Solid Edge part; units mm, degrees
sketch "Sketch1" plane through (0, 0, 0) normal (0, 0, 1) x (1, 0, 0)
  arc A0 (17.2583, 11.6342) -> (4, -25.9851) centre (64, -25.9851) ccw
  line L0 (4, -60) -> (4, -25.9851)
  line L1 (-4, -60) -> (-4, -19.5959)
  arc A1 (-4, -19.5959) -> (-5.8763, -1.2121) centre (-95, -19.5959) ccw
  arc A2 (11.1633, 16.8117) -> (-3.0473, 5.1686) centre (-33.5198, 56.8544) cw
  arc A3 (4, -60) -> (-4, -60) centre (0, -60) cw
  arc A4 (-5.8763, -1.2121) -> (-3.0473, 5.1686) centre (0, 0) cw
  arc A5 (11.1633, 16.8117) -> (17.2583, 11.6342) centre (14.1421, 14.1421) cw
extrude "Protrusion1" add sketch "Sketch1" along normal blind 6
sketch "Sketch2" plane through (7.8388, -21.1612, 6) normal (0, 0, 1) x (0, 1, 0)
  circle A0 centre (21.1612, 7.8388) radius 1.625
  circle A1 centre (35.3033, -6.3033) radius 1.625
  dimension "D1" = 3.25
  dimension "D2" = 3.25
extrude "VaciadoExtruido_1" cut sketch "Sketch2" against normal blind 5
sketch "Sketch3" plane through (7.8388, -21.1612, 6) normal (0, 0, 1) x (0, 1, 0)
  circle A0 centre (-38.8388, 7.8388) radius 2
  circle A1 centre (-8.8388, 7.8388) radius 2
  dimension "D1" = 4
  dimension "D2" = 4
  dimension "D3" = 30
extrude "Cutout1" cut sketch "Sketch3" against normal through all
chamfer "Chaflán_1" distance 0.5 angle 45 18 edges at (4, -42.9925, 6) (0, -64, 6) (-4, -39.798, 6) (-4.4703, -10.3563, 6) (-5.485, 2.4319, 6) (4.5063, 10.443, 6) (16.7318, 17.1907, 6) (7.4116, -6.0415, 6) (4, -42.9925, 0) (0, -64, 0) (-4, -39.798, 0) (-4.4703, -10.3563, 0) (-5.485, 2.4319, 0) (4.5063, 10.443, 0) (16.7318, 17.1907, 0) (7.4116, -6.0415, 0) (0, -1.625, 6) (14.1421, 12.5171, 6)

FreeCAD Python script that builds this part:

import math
import FreeCAD as App
import Part
import Sketcher

V = App.Vector
Q = App.Units.Quantity


def edges_at(feature, points):
    """Names of the edges that pass closest to the given points."""
    edges = feature.Shape.Edges
    near = lambda p: min(range(len(edges)), key=lambda i: edges[i].distToShape(Part.Vertex(*p))[0])
    return sorted({f"Edge{near(p) + 1}" for p in points})

doc = App.newDocument("Part")
body = doc.addObject("PartDesign::Body", "Body")

# Sketch on XY plane
sketch1 = doc.addObject("Sketcher::SketchObject", "Sketch")
body.addObject(sketch1)
sketch1.AttachmentSupport = (doc.XY_Plane, [""])
sketch1.MapMode = "FlatFace"
sketch1.addGeometry([
    Part.ArcOfCircle(Part.Circle(V(64, -26, 0), V(0, 0, 1), 60), math.radians(141), math.radians(180)),  # 0
    Part.ArcOfCircle(Part.Circle(V(14.1, 14.1, 0), V(0, 0, 1), 4), math.radians(-39), math.radians(138)),  # 1
    Part.ArcOfCircle(Part.Circle(V(-33.5, 56.9, 0), V(0, 0, 1), 60), math.radians(-59.48), math.radians(-41.87)),  # 2
    Part.ArcOfCircle(Part.Circle(V(0, 0, 0), V(0, 0, 1), 6), math.radians(121), math.radians(192)),  # 3
    Part.ArcOfCircle(Part.Circle(V(-95, -19.6, 0), V(0, 0, 1), 91), math.radians(0), math.radians(11.66)),  # 4
    Part.LineSegment(V(-4, -19.6, 0), V(-4, -60, 0)),  # 5
    Part.ArcOfCircle(Part.Circle(V(0, -60, 0), V(0, 0, 1), 4), math.radians(180), math.radians(360)),  # 6
    Part.LineSegment(V(4, -60, 0), V(4, -26, 0)),  # 7
], False)
sketch1.addConstraint([
    Sketcher.Constraint("Tangent", 0, 1, 1, 1),
    Sketcher.Constraint("Tangent", 1, 2, 2, 2),
    Sketcher.Constraint("Tangent", 2, 1, 3, 1),
    Sketcher.Constraint("Tangent", 3, 2, 4, 2),
    Sketcher.Constraint("Tangent", 4, 1, 5, 1),
    Sketcher.Constraint("Tangent", 5, 2, 6, 1),
    Sketcher.Constraint("Tangent", 6, 2, 7, 1),
    Sketcher.Constraint("Tangent", 7, 2, 0, 2),
    Sketcher.Constraint("Vertical", 5),
    Sketcher.Constraint("Vertical", 7),
    Sketcher.Constraint("Coincident", 3, 3, -1, 1),
    Sketcher.Constraint("Equal", 0, 2),
    Sketcher.Constraint("Equal", 1, 6),
    Sketcher.Constraint("PointOnObject", 6, 3, -2),
    Sketcher.Constraint("Radius", 0, Q("60 mm")),
    Sketcher.Constraint("Radius", 1, Q("4 mm")),
    Sketcher.Constraint("Radius", 3, Q("6 mm")),
    Sketcher.Constraint("DistanceY", 6, 3, -1, 1, Q("60 mm")),
    Sketcher.Constraint("Radius", 4, Q("90.999 mm")),
    Sketcher.Constraint("DistanceY", 7, 1, 7, 2, Q("34.015 mm")),
    Sketcher.Constraint("DistanceY", 4, 1, 0, 1, Q("31.23 mm")),
])
pad1 = doc.addObject("PartDesign::Pad", "Pad")
body.addObject(pad1)
pad1.Profile = sketch1
pad1.Length = 6

# Sketch on XY plane
sketch2 = doc.addObject("Sketcher::SketchObject", "Sketch001")
body.addObject(sketch2)
sketch2.AttachmentSupport = (doc.XY_Plane, [""])
sketch2.MapMode = "FlatFace"
sketch2.AttachmentOffset = App.Placement(V(0, 0, 6), App.Rotation())
sketch2.addGeometry([
    Part.Circle(V(0, 0, 0), V(0, 0, 1), 1.6),
    Part.Circle(V(14.1, 14.1, 0), V(0, 0, 1), 1.6),
], False)
sketch2.addConstraint([
    Sketcher.Constraint("Coincident", 0, 3, -1, 1),
    Sketcher.Constraint("Equal", 0, 1),
    Sketcher.Constraint("Diameter", 0, Q("3.25 mm")),
    Sketcher.Constraint("DistanceX", -1, 1, 1, 3, Q("14.142 mm")),
    Sketcher.Constraint("DistanceY", -1, 1, 1, 3, Q("14.142 mm")),
])
pocket1 = doc.addObject("PartDesign::Pocket", "Pocket")
body.addObject(pocket1)
pocket1.Profile = sketch2
pocket1.Length = 5

# Sketch on XY plane
sketch3 = doc.addObject("Sketcher::SketchObject", "Sketch002")
body.addObject(sketch3)
sketch3.AttachmentSupport = (doc.XY_Plane, [""])
sketch3.MapMode = "FlatFace"
sketch3.AttachmentOffset = App.Placement(V(0, 0, 6), App.Rotation())
sketch3.addGeometry([
    Part.Circle(V(0, -60, 0), V(0, 0, 1), 2),
    Part.Circle(V(0, -30, 0), V(0, 0, 1), 2),
], False)
sketch3.addConstraint([
    Sketcher.Constraint("Equal", 0, 1),
    Sketcher.Constraint("PointOnObject", 0, 3, -2),
    Sketcher.Constraint("PointOnObject", 1, 3, -2),
    Sketcher.Constraint("Diameter", 0, Q("4 mm")),
    Sketcher.Constraint("DistanceY", 0, 3, -1, 1, Q("60 mm")),
    Sketcher.Constraint("DistanceY", 1, 3, -1, 1, Q("30 mm")),
])
pocket2 = doc.addObject("PartDesign::Pocket", "Pocket001")
body.addObject(pocket2)
pocket2.Profile = sketch3
pocket2.Type = "ThroughAll"
doc.recompute()

chamfer = doc.addObject("PartDesign::Chamfer", "Chamfer")
body.addObject(chamfer)
chamfer.Base = (pocket2, edges_at(pocket2, [
    (4, -42.992, 6),
    (0, -64, 6),
    (-4, -39.798, 6),
    (-4.47, -10.356, 6),
    (-5.485, 2.432, 6),
    (4.506, 10.443, 6),
    (16.732, 17.191, 6),
    (7.412, -6.042, 6),
    (4, -42.992, 0),
    (0, -64, 0),
    (-4, -39.798, 0),
    (-4.47, -10.356, 0),
    (-5.485, 2.432, 0),
    (4.506, 10.443, 0),
    (16.732, 17.191, 0),
    (7.412, -6.042, 0),
    (0, -1.625, 6),
    (14.142, 12.517, 6),
]))
chamfer.Size = 0.5

doc.recompute()
